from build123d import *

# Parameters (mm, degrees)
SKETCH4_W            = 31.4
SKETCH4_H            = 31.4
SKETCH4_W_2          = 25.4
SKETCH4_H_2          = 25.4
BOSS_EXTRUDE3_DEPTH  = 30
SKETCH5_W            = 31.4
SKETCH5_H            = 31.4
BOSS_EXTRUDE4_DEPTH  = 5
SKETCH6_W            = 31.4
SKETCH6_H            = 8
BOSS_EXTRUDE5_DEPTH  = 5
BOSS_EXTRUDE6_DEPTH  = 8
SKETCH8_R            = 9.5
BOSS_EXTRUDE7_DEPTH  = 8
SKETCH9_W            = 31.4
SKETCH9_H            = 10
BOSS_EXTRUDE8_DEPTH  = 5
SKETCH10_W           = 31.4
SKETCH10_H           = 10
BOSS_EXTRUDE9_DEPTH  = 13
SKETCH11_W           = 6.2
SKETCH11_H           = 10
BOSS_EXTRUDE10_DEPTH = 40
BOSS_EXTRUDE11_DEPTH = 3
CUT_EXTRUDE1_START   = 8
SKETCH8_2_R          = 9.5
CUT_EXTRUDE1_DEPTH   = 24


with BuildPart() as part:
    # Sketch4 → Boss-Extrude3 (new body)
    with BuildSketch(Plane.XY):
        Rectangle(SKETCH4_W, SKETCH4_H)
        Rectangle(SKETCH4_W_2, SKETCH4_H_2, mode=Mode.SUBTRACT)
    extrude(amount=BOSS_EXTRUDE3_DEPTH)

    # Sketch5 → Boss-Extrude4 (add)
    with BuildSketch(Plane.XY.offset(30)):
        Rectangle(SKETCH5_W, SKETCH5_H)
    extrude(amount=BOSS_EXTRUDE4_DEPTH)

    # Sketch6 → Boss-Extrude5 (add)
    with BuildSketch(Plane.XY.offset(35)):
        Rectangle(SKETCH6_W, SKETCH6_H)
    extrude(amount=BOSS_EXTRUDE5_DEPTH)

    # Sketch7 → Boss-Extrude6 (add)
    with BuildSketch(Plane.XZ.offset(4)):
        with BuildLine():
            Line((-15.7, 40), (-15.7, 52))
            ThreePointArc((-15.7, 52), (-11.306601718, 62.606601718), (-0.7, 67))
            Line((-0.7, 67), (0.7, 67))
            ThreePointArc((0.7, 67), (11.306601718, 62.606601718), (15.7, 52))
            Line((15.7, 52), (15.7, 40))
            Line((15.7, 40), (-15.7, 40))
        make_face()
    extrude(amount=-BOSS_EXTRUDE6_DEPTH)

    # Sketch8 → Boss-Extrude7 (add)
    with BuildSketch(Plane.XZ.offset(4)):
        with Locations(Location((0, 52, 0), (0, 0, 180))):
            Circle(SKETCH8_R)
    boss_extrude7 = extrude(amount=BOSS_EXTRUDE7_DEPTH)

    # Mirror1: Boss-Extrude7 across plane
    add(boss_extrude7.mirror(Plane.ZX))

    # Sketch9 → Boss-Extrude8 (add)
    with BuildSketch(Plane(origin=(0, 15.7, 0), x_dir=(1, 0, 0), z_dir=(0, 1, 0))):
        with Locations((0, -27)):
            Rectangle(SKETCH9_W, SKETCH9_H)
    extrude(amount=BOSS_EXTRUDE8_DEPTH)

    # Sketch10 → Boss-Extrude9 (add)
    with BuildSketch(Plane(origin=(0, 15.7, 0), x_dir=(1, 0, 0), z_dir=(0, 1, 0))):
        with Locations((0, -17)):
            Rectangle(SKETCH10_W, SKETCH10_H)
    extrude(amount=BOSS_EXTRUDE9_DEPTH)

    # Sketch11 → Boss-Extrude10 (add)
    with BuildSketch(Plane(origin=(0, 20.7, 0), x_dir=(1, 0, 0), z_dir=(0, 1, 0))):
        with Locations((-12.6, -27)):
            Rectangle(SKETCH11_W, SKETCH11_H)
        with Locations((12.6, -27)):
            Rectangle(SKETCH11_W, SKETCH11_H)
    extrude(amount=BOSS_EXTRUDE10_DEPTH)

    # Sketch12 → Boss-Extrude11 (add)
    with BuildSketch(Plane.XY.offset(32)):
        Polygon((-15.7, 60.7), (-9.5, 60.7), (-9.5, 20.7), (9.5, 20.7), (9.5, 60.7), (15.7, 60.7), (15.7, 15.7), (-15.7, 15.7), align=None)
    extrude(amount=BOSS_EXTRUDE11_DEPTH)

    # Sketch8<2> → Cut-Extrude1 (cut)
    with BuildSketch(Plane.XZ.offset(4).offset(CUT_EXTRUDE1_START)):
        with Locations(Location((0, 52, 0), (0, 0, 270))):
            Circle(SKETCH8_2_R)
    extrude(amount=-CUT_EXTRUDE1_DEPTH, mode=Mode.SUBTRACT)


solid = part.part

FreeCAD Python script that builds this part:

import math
import FreeCAD as App
import Part
import Sketcher
Q = App.Units.Quantity


def add_polygon(sketch, points):
    """Adds a closed chain of lines whose ends are joined by coincident constraints."""
    first, n = sketch.GeometryCount, len(points)
    for a, b in zip(points, points[1:] + points[:1]):
        sketch.addGeometry(Part.LineSegment(App.Vector(*a, 0), App.Vector(*b, 0)), False)
    for i in range(n):
        sketch.addConstraint(Sketcher.Constraint("Coincident", first + i, 2, first + (i + 1) % n, 1))

doc = App.newDocument("Part")
body = doc.addObject("PartDesign::Body", "Body")

# Sketch on XY plane
sketch1 = body.newObject("Sketcher::SketchObject", "Sketch")
sketch1.AttachmentSupport = (doc.getObject("XY_Plane"), [""])
sketch1.MapMode = "FlatFace"
add_polygon(sketch1, [(-15.7, 15.7), (-15.7, -15.7), (15.7, -15.7), (15.7, 15.7)])  # lines 0-3
add_polygon(sketch1, [(12.7, -12.7), (-12.7, -12.7), (-12.7, 12.7), (12.7, 12.7)])  # lines 4-7
sketch1.addConstraint([
    Sketcher.Constraint("Vertical", 0),
    Sketcher.Constraint("Horizontal", 1),
    Sketcher.Constraint("Vertical", 2),
    Sketcher.Constraint("Horizontal", 3),
    Sketcher.Constraint("Horizontal", 4),
    Sketcher.Constraint("Vertical", 5),
    Sketcher.Constraint("Horizontal", 6),
    Sketcher.Constraint("Vertical", 7),
    Sketcher.Constraint("Symmetric", 0, 2, 2, 2, -1, 1),
    Sketcher.Constraint("Symmetric", 4, 2, 6, 2, -1, 1),
    Sketcher.Constraint("Equal", 3, 0),
    Sketcher.Constraint("Equal", 6, 5),
    Sketcher.Constraint("DistanceX", 1, 1, 1, 2, Q("31.4 mm")),
    Sketcher.Constraint("DistanceX", 4, 2, 4, 1, Q("25.4 mm")),
])
pad1 = body.newObject("PartDesign::Pad", "Pad")
pad1.Profile = sketch1
pad1.Length = 30

# Sketch on XY plane
sketch2 = body.newObject("Sketcher::SketchObject", "Sketch001")
sketch2.AttachmentSupport = (doc.getObject("XY_Plane"), [""])
sketch2.MapMode = "FlatFace"
sketch2.AttachmentOffset = App.Placement(App.Vector(0, 0, 30), App.Rotation())
add_polygon(sketch2, [(-15.7, 15.7), (-15.7, -15.7), (15.7, -15.7), (15.7, 15.7)])  # lines 0-3
sketch2.addConstraint([
    Sketcher.Constraint("Vertical", 0),
    Sketcher.Constraint("Horizontal", 1),
    Sketcher.Constraint("Vertical", 2),
    Sketcher.Constraint("Horizontal", 3),
    Sketcher.Constraint("Symmetric", 0, 2, 2, 2, -1, 1),
    Sketcher.Constraint("Equal", 3, 0),
    Sketcher.Constraint("DistanceX", 1, 1, 1, 2, Q("31.4 mm")),
])
pad2 = body.newObject("PartDesign::Pad", "Pad001")
pad2.Profile = sketch2
pad2.Length = 5

# Sketch on XY plane
sketch3 = body.newObject("Sketcher::SketchObject", "Sketch002")
sketch3.AttachmentSupport = (doc.getObject("XY_Plane"), [""])
sketch3.MapMode = "FlatFace"
sketch3.AttachmentOffset = App.Placement(App.Vector(0, 0, 35), App.Rotation())
add_polygon(sketch3, [(-15.7, 4), (-15.7, -4), (15.7, -4), (15.7, 4)])  # lines 0-3
sketch3.addConstraint([
    Sketcher.Constraint("Vertical", 0),
    Sketcher.Constraint("Horizontal", 1),
    Sketcher.Constraint("Vertical", 2),
    Sketcher.Constraint("Horizontal", 3),
    Sketcher.Constraint("Symmetric", 0, 2, 2, 2, -1, 1),
    Sketcher.Constraint("DistanceY", 0, 2, 0, 1, Q("8 mm")),
    Sketcher.Constraint("DistanceX", 1, 1, 1, 2, Q("31.4 mm")),
])
pad3 = body.newObject("PartDesign::Pad", "Pad002")
pad3.Profile = sketch3
pad3.Length = 5

# Sketch on XZ plane
sketch4 = body.newObject("Sketcher::SketchObject", "Sketch003")
sketch4.AttachmentSupport = (doc.getObject("XZ_Plane"), [""])
sketch4.MapMode = "FlatFace"
sketch4.AttachmentOffset = App.Placement(App.Vector(0, 0, 4), App.Rotation())
sketch4.addGeometry([
    Part.LineSegment(App.Vector(-15.7, 52, 0), App.Vector(-15.7, 40, 0)),  # 0
    Part.LineSegment(App.Vector(-15.7, 40, 0), App.Vector(15.7, 40, 0)),  # 1
    Part.LineSegment(App.Vector(15.7, 40, 0), App.Vector(15.7, 52, 0)),  # 2
    Part.ArcOfCircle(Part.Circle(App.Vector(0.7, 52, 0), App.Vector(0, 0, 1), 15), math.radians(0), math.radians(90)),  # 3
    Part.LineSegment(App.Vector(0.7, 67, 0), App.Vector(-0.7, 67, 0)),  # 4
    Part.ArcOfCircle(Part.Circle(App.Vector(-0.7, 52, 0), App.Vector(0, 0, 1), 15), math.radians(90), math.radians(180)),  # 5
], False)
sketch4.addConstraint([
    Sketcher.Constraint("Coincident", 0, 2, 1, 1),
    Sketcher.Constraint("Coincident", 1, 2, 2, 1),
    Sketcher.Constraint("Tangent", 2, 2, 3, 1),
    Sketcher.Constraint("Tangent", 3, 2, 4, 1),
    Sketcher.Constraint("Tangent", 4, 2, 5, 1),
    Sketcher.Constraint("Tangent", 5, 2, 0, 1),
    Sketcher.Constraint("Vertical", 0),
    Sketcher.Constraint("Horizontal", 1),
    Sketcher.Constraint("Vertical", 2),
    Sketcher.Constraint("Horizontal", 4),
    Sketcher.Constraint("Equal", 3, 5),
    Sketcher.Constraint("Radius", 3, Q("15 mm")),
    Sketcher.Constraint("DistanceY", 0, 2, 0, 1, Q("12 mm")),
    Sketcher.Constraint("DistanceX", 1, 1, 1, 2, Q("31.4 mm")),
    Sketcher.Constraint("DistanceY", -1, 1, 3, 3, Q("52 mm")),
    Sketcher.Constraint("DistanceX", -1, 1, 3, 3, Q("0.7 mm")),
])
pad4 = body.newObject("PartDesign::Pad", "Pad003")
pad4.Profile = sketch4
pad4.Length = 8
pad4.Reversed = True

# Sketch on XZ plane
sketch5 = body.newObject("Sketcher::SketchObject", "Sketch004")
sketch5.AttachmentSupport = (doc.getObject("XZ_Plane"), [""])
sketch5.MapMode = "FlatFace"
sketch5.AttachmentOffset = App.Placement(App.Vector(0, 0, 4), App.Rotation())
sketch5.addGeometry(Part.Circle(App.Vector(0, 52, 0), App.Vector(0, 0, 1), 9.5), False)
sketch5.addConstraint([
    Sketcher.Constraint("PointOnObject", 0, 3, -2),
    Sketcher.Constraint("Diameter", 0, Q("19 mm")),
    Sketcher.Constraint("DistanceY", -1, 1, 0, 3, Q("52 mm")),
])
pad5 = body.newObject("PartDesign::Pad", "Pad004")
pad5.Profile = sketch5
pad5.Length = 8
doc.recompute()

mirrored = body.newObject("PartDesign::Mirrored", "Mirrored")
mirrored.Originals = [pad5]
mirrored.MirrorPlane = (doc.getObject("XZ_Plane"), [""])
body.Tip = mirrored

# Sketch on XZ plane
sketch6 = body.newObject("Sketcher::SketchObject", "Sketch005")
sketch6.AttachmentSupport = (doc.getObject("XZ_Plane"), [""])
sketch6.MapMode = "FlatFace"
sketch6.AttachmentOffset = App.Placement(App.Vector(0, 0, -15.7), App.Rotation())
add_polygon(sketch6, [(-15.7, 22), (-15.7, 32), (15.7, 32), (15.7, 22)])  # lines 0-3
sketch6.addConstraint([
    Sketcher.Constraint("Vertical", 0),
    Sketcher.Constraint("Horizontal", 1),
    Sketcher.Constraint("Vertical", 2),
    Sketcher.Constraint("Horizontal", 3),
    Sketcher.Constraint("DistanceY", 0, 1, 0, 2, Q("10 mm")),
    Sketcher.Constraint("DistanceX", 1, 1, 1, 2, Q("31.4 mm")),
    Sketcher.Constraint("DistanceY", -1, 1, 0, 2, Q("32 mm")),
    Sketcher.Constraint("DistanceX", 0, 2, -1, 1, Q("15.7 mm")),
])
pad6 = body.newObject("PartDesign::Pad", "Pad005")
pad6.Profile = sketch6
pad6.Length = 5
pad6.Reversed = True

# Sketch on XZ plane
sketch7 = body.newObject("Sketcher::SketchObject", "Sketch006")
sketch7.AttachmentSupport = (doc.getObject("XZ_Plane"), [""])
sketch7.MapMode = "FlatFace"
sketch7.AttachmentOffset = App.Placement(App.Vector(0, 0, -15.7), App.Rotation())
add_polygon(sketch7, [(-15.7, 12), (-15.7, 22), (15.7, 22), (15.7, 12)])  # lines 0-3
sketch7.addConstraint([
    Sketcher.Constraint("Vertical", 0),
    Sketcher.Constraint("Horizontal", 1),
    Sketcher.Constraint("Vertical", 2),
    Sketcher.Constraint("Horizontal", 3),
    Sketcher.Constraint("DistanceY", 0, 1, 0, 2, Q("10 mm")),
    Sketcher.Constraint("DistanceX", 1, 1, 1, 2, Q("31.4 mm")),
    Sketcher.Constraint("DistanceY", -1, 1, 0, 2, Q("22 mm")),
    Sketcher.Constraint("DistanceX", 0, 2, -1, 1, Q("15.7 mm")),
])
pad7 = body.newObject("PartDesign::Pad", "Pad006")
pad7.Profile = sketch7
pad7.Length = 13
pad7.Reversed = True

# Sketch on XZ plane
sketch8 = body.newObject("Sketcher::SketchObject", "Sketch007")
sketch8.AttachmentSupport = (doc.getObject("XZ_Plane"), [""])
sketch8.MapMode = "FlatFace"
sketch8.AttachmentOffset = App.Placement(App.Vector(0, 0, -20.7), App.Rotation())
add_polygon(sketch8, [(-15.7, 22), (-15.7, 32), (-9.5, 32), (-9.5, 22)])  # lines 0-3
add_polygon(sketch8, [(9.5, 22), (9.5, 32), (15.7, 32), (15.7, 22)])  # lines 4-7
sketch8.addConstraint([
    Sketcher.Constraint("Vertical", 0),
    Sketcher.Constraint("Horizontal", 1),
    Sketcher.Constraint("Vertical", 2),
    Sketcher.Constraint("Horizontal", 3),
    Sketcher.Constraint("Vertical", 4),
    Sketcher.Constraint("Horizontal", 5),
    Sketcher.Constraint("Vertical", 6),
    Sketcher.Constraint("Horizontal", 7),
    Sketcher.Constraint("Symmetric", 1, 2, 4, 2, -2),
    Sketcher.Constraint("Symmetric", 3, 2, 6, 2, -2),
    Sketcher.Constraint("DistanceY", 0, 1, 0, 2, Q("10 mm")),
    Sketcher.Constraint("DistanceX", 1, 1, 1, 2, Q("6.2 mm")),
    Sketcher.Constraint("DistanceY", -1, 1, 0, 2, Q("32 mm")),
    Sketcher.Constraint("DistanceX", 1, 2, 4, 2, Q("19 mm")),
])
pad8 = body.newObject("PartDesign::Pad", "Pad007")
pad8.Profile = sketch8
pad8.Length = 40
pad8.Reversed = True

# Sketch on XY plane
sketch9 = body.newObject("Sketcher::SketchObject", "Sketch008")
sketch9.AttachmentSupport = (doc.getObject("XY_Plane"), [""])
sketch9.MapMode = "FlatFace"
sketch9.AttachmentOffset = App.Placement(App.Vector(0, 0, 32), App.Rotation())
add_polygon(sketch9, [(-9.5, 60.7), (-15.7, 60.7), (-15.7, 15.7), (15.7, 15.7), (15.7, 60.7), (9.5, 60.7), (9.5, 20.7), (-9.5, 20.7)])  # lines 0-7
sketch9.addConstraint([
    Sketcher.Constraint("Horizontal", 0),
    Sketcher.Constraint("Vertical", 1),
    Sketcher.Constraint("Horizontal", 2),
    Sketcher.Constraint("Vertical", 3),
    Sketcher.Constraint("Horizontal", 4),
    Sketcher.Constraint("Vertical", 5),
    Sketcher.Constraint("Horizontal", 6),
    Sketcher.Constraint("Vertical", 7),
    Sketcher.Constraint("Symmetric", 0, 2, 3, 2, -2),
    Sketcher.Constraint("Equal", 0, 4),
    Sketcher.Constraint("DistanceX", 6, 2, 6, 1, Q("19 mm")),
    Sketcher.Constraint("DistanceY", 1, 2, 1, 1, Q("45 mm")),
    Sketcher.Constraint("DistanceY", 5, 2, 5, 1, Q("40 mm")),
    Sketcher.Constraint("DistanceX", 0, 2, 0, 1, Q("6.2 mm")),
    Sketcher.Constraint("DistanceY", -1, 1, 0, 2, Q("60.7 mm")),
])
pad9 = body.newObject("PartDesign::Pad", "Pad008")
pad9.Profile = sketch9
pad9.Length = 3

# Sketch on XZ plane
sketch10 = body.newObject("Sketcher::SketchObject", "Sketch009")
sketch10.AttachmentSupport = (doc.getObject("XZ_Plane"), [""])
sketch10.MapMode = "FlatFace"
sketch10.AttachmentOffset = App.Placement(App.Vector(0, 0, 12), App.Rotation())
sketch10.addGeometry(Part.Circle(App.Vector(0, 52, 0), App.Vector(0, 0, 1), 9.5), False)
sketch10.addConstraint([
    Sketcher.Constraint("PointOnObject", 0, 3, -2),
    Sketcher.Constraint("Diameter", 0, Q("19 mm")),
    Sketcher.Constraint("DistanceY", -1, 1, 0, 3, Q("52 mm")),
])
pocket1 = body.newObject("PartDesign::Pocket", "Pocket")
pocket1.Profile = sketch10
pocket1.Length = 24

doc.recompute()
